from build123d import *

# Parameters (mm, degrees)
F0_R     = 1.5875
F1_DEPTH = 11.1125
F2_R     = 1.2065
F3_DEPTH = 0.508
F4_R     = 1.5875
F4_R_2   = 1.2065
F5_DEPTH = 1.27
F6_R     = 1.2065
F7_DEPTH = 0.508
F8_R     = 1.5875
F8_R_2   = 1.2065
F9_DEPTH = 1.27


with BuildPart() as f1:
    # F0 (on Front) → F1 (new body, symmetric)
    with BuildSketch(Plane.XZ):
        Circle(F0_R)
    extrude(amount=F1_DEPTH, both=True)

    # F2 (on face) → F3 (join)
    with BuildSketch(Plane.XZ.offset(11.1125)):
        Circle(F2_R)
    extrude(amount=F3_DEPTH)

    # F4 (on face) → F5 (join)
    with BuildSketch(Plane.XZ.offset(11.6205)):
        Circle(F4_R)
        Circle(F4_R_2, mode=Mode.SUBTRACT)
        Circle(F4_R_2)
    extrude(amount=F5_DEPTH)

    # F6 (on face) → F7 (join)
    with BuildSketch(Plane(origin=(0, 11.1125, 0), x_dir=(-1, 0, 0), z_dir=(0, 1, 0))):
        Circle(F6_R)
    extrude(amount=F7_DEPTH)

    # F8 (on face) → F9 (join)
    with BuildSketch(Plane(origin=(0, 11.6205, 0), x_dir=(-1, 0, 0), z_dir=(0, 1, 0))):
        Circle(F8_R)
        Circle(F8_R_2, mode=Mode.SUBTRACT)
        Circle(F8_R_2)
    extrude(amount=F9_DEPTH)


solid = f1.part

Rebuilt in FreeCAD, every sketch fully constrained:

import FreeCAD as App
import Part
import Sketcher
Q = App.Units.Quantity

doc = App.newDocument("Part")
body = doc.addObject("PartDesign::Body", "Body")

# Sketch on XZ plane
sketch1 = doc.addObject("Sketcher::SketchObject", "Sketch")
body.addObject(sketch1)
sketch1.AttachmentSupport = (doc.XZ_Plane, [""])
sketch1.MapMode = "FlatFace"
sketch1.addGeometry(Part.Circle(App.Vector(0, 0, 0), App.Vector(0, 0, 1), 1.6), False)
sketch1.addConstraint(Sketcher.Constraint("Coincident", 0, 3, -1, 1))
sketch1.addConstraint(Sketcher.Constraint("Diameter", 0, Q("0.125 in")))
pad1 = doc.addObject("PartDesign::Pad", "Pad")
body.addObject(pad1)
pad1.Profile = sketch1
pad1.Length = Q("0.875 in")
pad1.Midplane = True

# Sketch on XZ plane
sketch2 = doc.addObject("Sketcher::SketchObject", "Sketch001")
body.addObject(sketch2)
sketch2.AttachmentSupport = (doc.XZ_Plane, [""])
sketch2.MapMode = "FlatFace"
sketch2.AttachmentOffset = App.Placement(App.Vector(0, 0, 0.4375 * 25.4), App.Rotation())
sketch2.addGeometry(Part.Circle(App.Vector(0, 0, 0), App.Vector(0, 0, 1), 1.2), False)
sketch2.addConstraint(Sketcher.Constraint("Coincident", 0, 3, -1, 1))
sketch2.addConstraint(Sketcher.Constraint("Diameter", 0, Q("0.095 in")))
pad2 = doc.addObject("PartDesign::Pad", "Pad001")
body.addObject(pad2)
pad2.Profile = sketch2
pad2.Length = Q("0.02 in")

# Sketch on XZ plane
sketch3 = doc.addObject("Sketcher::SketchObject", "Sketch002")
body.addObject(sketch3)
sketch3.AttachmentSupport = (doc.XZ_Plane, [""])
sketch3.MapMode = "FlatFace"
sketch3.AttachmentOffset = App.Placement(App.Vector(0, 0, 0.4575 * 25.4), App.Rotation())
sketch3.addGeometry(Part.Circle(App.Vector(0, 0, 0), App.Vector(0, 0, 1), 1.6), False)
sketch3.addConstraint(Sketcher.Constraint("Coincident", 0, 3, -1, 1))
sketch3.addConstraint(Sketcher.Constraint("Diameter", 0, Q("0.125 in")))
pad3 = doc.addObject("PartDesign::Pad", "Pad002")
body.addObject(pad3)
pad3.Profile = sketch3
pad3.Length = Q("0.05 in")

# Sketch on XZ plane
sketch4 = doc.addObject("Sketcher::SketchObject", "Sketch003")
body.addObject(sketch4)
sketch4.AttachmentSupport = (doc.XZ_Plane, [""])
sketch4.MapMode = "FlatFace"
sketch4.AttachmentOffset = App.Placement(App.Vector(0, 0, -0.4375 * 25.4), App.Rotation())
sketch4.addGeometry(Part.Circle(App.Vector(0, 0, 0), App.Vector(0, 0, 1), 1.2), False)
sketch4.addConstraint(Sketcher.Constraint("Coincident", 0, 3, -1, 1))
sketch4.addConstraint(Sketcher.Constraint("Diameter", 0, Q("0.095 in")))
pad4 = doc.addObject("PartDesign::Pad", "Pad003")
body.addObject(pad4)
pad4.Profile = sketch4
pad4.Length = Q("0.02 in")
pad4.Reversed = True

# Sketch on XZ plane
sketch5 = doc.addObject("Sketcher::SketchObject", "Sketch004")
body.addObject(sketch5)
sketch5.AttachmentSupport = (doc.XZ_Plane, [""])
sketch5.MapMode = "FlatFace"
sketch5.AttachmentOffset = App.Placement(App.Vector(0, 0, -0.4575 * 25.4), App.Rotation())
sketch5.addGeometry(Part.Circle(App.Vector(0, 0, 0), App.Vector(0, 0, 1), 1.6), False)
sketch5.addConstraint(Sketcher.Constraint("Coincident", 0, 3, -1, 1))
sketch5.addConstraint(Sketcher.Constraint("Diameter", 0, Q("0.125 in")))
pad5 = doc.addObject("PartDesign::Pad", "Pad004")
body.addObject(pad5)
pad5.Profile = sketch5
pad5.Length = Q("0.05 in")
pad5.Reversed = True

doc.recompute()
